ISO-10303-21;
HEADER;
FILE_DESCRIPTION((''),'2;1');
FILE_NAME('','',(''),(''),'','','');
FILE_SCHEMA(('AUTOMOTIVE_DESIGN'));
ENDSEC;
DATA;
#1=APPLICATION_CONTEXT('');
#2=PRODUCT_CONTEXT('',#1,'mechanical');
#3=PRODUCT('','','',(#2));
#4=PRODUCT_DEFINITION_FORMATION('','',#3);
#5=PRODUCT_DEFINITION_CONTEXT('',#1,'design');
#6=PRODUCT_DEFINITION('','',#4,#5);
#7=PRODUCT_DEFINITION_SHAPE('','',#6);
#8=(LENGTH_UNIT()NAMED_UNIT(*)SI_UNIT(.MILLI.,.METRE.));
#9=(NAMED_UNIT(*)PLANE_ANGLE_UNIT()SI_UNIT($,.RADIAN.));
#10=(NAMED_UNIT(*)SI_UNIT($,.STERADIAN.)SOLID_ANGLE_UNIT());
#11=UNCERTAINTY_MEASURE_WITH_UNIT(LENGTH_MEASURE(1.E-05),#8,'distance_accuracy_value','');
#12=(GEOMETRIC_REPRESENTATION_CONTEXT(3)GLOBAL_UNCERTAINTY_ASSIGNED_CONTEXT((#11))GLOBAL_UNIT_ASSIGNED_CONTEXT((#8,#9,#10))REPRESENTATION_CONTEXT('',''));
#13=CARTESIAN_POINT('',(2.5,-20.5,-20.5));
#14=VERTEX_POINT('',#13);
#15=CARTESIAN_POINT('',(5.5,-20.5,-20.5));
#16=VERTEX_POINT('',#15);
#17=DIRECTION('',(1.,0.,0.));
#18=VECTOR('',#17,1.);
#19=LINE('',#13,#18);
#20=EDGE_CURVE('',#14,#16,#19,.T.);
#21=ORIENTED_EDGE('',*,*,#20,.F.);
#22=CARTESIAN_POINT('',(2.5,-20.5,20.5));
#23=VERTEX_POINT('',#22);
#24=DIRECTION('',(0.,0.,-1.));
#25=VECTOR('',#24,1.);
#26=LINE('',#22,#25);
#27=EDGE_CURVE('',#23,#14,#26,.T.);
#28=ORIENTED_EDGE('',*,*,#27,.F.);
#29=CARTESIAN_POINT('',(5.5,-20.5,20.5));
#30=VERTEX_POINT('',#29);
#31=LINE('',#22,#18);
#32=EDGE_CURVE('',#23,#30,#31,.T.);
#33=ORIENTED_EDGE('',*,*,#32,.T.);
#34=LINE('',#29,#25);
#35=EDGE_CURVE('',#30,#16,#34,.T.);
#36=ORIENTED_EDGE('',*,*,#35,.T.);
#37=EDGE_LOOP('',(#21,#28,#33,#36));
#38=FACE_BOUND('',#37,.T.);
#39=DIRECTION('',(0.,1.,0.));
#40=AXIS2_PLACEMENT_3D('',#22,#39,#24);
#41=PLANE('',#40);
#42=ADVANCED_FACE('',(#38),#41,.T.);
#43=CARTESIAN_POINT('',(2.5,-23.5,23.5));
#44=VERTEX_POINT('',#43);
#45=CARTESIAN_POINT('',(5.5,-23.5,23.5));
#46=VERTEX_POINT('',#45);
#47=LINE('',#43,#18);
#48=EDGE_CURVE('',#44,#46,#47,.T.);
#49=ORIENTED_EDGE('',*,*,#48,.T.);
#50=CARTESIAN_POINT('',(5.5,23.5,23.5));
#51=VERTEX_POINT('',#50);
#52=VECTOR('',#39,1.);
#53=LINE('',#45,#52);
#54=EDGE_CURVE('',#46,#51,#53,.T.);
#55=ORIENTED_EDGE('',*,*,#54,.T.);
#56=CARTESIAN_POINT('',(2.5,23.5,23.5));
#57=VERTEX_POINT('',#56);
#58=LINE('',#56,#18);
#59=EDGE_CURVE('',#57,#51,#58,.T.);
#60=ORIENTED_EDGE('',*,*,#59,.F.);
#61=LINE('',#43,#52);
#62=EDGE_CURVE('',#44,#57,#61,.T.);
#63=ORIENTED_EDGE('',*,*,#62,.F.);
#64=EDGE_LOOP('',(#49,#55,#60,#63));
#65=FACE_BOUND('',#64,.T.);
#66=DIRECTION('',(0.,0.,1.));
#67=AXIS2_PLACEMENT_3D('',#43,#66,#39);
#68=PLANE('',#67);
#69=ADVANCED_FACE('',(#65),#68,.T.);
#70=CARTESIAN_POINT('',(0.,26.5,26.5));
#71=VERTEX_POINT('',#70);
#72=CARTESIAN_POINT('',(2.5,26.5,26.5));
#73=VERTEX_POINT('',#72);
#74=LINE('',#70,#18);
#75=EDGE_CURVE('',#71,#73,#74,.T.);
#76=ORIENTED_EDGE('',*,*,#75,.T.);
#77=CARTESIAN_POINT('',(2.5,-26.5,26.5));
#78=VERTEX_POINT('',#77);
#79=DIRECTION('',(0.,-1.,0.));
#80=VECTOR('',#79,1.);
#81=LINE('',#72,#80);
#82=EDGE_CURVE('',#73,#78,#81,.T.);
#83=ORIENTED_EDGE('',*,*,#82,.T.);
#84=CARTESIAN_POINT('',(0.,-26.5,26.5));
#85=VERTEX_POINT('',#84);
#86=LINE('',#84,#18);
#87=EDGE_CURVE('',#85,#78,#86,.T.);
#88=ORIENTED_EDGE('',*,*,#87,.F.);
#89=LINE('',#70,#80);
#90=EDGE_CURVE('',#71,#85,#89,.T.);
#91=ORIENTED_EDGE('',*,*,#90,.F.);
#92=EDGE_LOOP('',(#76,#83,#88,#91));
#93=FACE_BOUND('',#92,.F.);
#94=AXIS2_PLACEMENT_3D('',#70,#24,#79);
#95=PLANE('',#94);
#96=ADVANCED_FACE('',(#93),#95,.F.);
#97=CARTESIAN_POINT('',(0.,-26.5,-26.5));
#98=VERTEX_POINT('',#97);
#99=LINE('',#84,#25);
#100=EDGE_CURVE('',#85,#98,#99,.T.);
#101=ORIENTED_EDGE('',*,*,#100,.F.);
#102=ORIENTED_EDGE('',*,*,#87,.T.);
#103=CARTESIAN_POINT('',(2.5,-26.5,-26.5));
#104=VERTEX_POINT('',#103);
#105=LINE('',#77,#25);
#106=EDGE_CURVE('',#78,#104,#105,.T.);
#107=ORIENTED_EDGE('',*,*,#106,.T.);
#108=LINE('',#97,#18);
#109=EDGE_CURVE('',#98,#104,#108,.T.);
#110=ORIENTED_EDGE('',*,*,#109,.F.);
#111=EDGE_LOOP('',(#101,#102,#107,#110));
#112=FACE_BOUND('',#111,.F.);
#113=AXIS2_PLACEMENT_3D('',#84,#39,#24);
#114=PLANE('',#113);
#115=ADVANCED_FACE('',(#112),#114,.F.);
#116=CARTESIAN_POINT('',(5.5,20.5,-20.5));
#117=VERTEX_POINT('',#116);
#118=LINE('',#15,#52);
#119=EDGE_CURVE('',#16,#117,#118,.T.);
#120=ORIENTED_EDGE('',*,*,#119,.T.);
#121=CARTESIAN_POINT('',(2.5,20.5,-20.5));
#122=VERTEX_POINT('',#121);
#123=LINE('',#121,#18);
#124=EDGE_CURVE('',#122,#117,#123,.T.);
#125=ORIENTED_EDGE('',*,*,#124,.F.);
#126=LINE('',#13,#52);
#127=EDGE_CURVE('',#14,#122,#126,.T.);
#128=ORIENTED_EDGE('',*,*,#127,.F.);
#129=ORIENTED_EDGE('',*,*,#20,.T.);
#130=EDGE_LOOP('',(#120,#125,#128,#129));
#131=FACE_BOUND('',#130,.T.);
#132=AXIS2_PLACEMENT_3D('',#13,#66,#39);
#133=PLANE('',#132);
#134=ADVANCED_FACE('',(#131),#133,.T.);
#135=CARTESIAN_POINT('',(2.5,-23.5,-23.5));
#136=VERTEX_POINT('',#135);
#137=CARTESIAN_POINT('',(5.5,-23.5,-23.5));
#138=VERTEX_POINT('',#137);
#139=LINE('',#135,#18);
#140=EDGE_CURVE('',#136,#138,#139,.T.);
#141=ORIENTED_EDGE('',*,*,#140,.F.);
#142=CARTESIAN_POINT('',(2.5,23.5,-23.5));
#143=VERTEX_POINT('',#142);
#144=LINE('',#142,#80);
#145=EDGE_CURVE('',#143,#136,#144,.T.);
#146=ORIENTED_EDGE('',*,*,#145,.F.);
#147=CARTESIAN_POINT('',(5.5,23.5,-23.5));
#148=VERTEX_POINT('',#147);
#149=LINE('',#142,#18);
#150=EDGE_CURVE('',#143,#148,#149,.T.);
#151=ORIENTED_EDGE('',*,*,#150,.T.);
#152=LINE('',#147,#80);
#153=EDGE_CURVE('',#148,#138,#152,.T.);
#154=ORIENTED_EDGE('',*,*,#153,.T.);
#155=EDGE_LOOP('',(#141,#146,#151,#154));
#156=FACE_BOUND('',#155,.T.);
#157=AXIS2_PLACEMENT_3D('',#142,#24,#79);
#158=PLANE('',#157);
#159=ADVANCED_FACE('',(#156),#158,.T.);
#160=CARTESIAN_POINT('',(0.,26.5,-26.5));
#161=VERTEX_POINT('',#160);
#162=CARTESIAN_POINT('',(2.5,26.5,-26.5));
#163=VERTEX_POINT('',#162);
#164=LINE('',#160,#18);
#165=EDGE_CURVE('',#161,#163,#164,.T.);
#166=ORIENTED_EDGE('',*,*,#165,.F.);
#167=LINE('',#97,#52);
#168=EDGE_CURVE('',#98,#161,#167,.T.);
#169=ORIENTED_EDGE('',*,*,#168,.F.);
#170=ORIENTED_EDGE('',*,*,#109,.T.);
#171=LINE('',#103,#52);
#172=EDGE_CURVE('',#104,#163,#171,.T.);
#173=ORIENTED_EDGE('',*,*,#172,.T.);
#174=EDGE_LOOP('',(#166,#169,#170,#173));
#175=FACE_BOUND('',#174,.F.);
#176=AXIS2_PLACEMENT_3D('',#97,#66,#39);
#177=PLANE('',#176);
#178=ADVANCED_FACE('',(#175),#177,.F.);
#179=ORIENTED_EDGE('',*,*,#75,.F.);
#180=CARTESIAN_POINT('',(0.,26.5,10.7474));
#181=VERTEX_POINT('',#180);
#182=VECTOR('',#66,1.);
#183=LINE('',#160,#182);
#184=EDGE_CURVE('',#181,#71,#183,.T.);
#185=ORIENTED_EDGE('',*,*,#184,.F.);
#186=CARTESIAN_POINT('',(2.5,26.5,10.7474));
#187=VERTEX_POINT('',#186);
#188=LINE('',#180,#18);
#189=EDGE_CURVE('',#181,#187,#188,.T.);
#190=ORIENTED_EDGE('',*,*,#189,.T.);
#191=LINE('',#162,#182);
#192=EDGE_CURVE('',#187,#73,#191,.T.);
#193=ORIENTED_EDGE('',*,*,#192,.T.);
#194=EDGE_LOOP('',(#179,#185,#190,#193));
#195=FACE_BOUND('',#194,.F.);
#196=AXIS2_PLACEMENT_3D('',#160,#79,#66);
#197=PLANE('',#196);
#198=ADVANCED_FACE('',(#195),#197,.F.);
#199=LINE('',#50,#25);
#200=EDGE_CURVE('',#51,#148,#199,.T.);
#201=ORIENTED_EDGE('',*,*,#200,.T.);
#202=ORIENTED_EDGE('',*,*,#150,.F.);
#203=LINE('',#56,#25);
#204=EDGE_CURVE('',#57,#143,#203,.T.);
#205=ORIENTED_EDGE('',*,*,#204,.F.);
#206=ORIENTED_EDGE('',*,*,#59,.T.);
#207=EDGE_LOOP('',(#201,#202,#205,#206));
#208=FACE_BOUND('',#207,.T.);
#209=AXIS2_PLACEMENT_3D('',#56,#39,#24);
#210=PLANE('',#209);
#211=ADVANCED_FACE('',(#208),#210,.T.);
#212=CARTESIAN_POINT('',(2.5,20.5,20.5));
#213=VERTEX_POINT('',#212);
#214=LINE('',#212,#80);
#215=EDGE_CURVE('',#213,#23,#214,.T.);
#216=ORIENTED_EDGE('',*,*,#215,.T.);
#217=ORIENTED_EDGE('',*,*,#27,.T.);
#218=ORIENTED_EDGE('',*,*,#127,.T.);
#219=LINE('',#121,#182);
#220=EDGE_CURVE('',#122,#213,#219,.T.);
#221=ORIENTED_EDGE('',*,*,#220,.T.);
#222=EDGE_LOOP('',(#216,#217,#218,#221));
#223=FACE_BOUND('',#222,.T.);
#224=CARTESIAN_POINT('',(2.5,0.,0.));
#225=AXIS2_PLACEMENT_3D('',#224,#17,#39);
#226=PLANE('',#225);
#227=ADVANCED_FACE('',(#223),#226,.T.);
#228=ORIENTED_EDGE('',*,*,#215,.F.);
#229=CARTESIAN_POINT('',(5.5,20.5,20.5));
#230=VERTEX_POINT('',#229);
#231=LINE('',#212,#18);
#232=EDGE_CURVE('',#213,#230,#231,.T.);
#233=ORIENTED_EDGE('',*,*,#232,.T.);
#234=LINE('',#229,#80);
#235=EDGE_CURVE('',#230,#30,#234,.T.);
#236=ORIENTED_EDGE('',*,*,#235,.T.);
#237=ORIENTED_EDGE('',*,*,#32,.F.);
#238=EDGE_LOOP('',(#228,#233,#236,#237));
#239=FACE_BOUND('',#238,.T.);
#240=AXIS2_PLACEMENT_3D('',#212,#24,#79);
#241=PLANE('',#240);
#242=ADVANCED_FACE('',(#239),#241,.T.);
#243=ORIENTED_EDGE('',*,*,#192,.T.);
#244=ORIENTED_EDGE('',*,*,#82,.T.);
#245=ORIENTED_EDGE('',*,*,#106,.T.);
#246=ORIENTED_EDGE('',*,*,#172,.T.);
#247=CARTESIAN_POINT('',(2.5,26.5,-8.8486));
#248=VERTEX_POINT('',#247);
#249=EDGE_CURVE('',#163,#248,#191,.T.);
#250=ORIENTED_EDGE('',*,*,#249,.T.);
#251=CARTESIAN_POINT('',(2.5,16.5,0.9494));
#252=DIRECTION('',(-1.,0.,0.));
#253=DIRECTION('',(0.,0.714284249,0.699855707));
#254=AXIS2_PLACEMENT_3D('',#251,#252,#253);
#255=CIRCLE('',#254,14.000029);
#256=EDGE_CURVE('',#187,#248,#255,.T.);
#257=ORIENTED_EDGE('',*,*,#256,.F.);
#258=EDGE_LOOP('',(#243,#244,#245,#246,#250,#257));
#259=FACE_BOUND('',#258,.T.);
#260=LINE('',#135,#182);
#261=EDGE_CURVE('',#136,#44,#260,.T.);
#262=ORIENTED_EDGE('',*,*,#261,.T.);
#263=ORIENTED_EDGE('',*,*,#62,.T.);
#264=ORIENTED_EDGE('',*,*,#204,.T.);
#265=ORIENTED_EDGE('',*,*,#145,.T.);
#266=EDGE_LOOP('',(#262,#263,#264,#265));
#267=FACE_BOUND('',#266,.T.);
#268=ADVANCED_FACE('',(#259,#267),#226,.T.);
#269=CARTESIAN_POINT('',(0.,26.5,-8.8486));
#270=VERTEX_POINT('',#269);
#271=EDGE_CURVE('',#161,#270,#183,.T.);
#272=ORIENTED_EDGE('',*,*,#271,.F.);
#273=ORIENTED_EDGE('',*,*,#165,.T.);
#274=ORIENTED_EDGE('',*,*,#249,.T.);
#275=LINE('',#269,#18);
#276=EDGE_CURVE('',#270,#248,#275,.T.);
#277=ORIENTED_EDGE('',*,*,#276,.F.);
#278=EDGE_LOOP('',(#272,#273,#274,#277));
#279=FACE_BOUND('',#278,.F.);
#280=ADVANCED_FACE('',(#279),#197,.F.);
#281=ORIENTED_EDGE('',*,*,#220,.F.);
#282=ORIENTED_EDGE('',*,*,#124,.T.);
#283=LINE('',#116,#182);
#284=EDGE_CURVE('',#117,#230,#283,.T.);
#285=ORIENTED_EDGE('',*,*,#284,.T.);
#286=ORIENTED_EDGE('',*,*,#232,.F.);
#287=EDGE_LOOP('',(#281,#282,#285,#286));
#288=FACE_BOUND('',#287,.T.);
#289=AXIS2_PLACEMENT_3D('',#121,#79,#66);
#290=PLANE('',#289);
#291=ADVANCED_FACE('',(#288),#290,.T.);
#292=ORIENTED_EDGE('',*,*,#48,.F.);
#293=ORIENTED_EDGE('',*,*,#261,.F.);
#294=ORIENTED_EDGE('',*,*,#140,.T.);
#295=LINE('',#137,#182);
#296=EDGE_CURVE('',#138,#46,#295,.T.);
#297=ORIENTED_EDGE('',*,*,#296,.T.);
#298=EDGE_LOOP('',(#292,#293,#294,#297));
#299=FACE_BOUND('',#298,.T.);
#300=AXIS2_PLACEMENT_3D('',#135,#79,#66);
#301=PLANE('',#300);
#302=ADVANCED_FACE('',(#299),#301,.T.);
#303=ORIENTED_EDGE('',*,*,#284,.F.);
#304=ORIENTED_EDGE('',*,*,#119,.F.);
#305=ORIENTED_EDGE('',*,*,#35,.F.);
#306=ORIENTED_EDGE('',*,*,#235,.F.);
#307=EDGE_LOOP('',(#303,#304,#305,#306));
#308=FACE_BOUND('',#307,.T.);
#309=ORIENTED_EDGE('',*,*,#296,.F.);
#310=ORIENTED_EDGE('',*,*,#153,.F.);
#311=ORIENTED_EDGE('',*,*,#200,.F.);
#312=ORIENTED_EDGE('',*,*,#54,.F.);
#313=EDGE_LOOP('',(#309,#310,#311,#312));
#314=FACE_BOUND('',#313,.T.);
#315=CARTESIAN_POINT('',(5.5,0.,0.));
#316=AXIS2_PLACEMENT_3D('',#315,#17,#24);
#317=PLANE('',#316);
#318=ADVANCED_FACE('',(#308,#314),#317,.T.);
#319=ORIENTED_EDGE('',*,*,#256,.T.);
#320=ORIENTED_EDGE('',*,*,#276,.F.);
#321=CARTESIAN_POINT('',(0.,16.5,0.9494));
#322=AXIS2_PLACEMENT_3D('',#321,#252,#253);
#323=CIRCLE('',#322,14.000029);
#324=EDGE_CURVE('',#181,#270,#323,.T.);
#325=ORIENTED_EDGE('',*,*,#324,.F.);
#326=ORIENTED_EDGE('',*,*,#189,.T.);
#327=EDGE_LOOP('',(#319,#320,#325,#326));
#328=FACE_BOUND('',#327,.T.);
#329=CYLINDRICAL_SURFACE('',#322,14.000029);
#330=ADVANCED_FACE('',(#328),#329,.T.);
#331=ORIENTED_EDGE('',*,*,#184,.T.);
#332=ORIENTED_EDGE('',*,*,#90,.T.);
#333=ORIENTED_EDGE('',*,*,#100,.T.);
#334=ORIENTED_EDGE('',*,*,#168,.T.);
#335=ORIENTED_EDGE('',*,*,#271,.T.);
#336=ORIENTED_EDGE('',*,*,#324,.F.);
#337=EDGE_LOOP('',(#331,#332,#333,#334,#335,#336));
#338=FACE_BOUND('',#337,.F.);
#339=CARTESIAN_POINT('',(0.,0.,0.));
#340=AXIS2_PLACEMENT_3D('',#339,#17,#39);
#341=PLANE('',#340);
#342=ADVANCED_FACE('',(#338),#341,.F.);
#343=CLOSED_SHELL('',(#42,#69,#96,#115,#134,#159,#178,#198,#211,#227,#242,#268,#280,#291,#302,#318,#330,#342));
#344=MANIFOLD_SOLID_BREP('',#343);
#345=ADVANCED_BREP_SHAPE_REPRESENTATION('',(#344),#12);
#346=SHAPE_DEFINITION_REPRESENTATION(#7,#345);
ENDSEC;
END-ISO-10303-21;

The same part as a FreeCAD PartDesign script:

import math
import FreeCAD as App
import Part
import Sketcher

V = App.Vector
Q = App.Units.Quantity

doc = App.newDocument("Part")
body = doc.addObject("PartDesign::Body", "Body")

# Sketch on YZ plane
sketch1 = body.newObject("Sketcher::SketchObject", "Sketch")
sketch1.AttachmentSupport = (doc.getObject("YZ_Plane"), [""])
sketch1.MapMode = "FlatFace"
sketch1.addGeometry(Part.LineSegment(V(26.5, -26.5, 0), V(26.5, 26.5, 0)), False)
sketch1.addGeometry(Part.LineSegment(V(26.5, 26.5, 0), V(-26.5, 26.5, 0)), False)
sketch1.addGeometry(Part.LineSegment(V(-26.5, 26.5, 0), V(-26.5, -26.5, 0)), False)
sketch1.addGeometry(Part.LineSegment(V(-26.5, -26.5, 0), V(26.5, -26.5, 0)), False)
sketch1.addConstraint(Sketcher.Constraint("Coincident", 0, 2, 1, 1))
sketch1.addConstraint(Sketcher.Constraint("Coincident", 1, 2, 2, 1))
sketch1.addConstraint(Sketcher.Constraint("Coincident", 2, 2, 3, 1))
sketch1.addConstraint(Sketcher.Constraint("Coincident", 3, 2, 0, 1))
sketch1.addConstraint(Sketcher.Constraint("Vertical", 0))
sketch1.addConstraint(Sketcher.Constraint("Horizontal", 1))
sketch1.addConstraint(Sketcher.Constraint("Vertical", 2))
sketch1.addConstraint(Sketcher.Constraint("Horizontal", 3))
sketch1.addConstraint(Sketcher.Constraint("Symmetric", 0, 2, 2, 2, -1, 1))
sketch1.addConstraint(Sketcher.Constraint("Equal", 3, 0))
sketch1.addConstraint(Sketcher.Constraint("DistanceX", 1, 2, 1, 1, Q("53 mm")))
pad1 = body.newObject("PartDesign::Pad", "Pad")
pad1.Profile = sketch1
pad1.Length = 2.5

# Sketch on YZ plane
sketch2 = body.newObject("Sketcher::SketchObject", "Sketch001")
sketch2.AttachmentSupport = (doc.getObject("YZ_Plane"), [""])
sketch2.MapMode = "FlatFace"
sketch2.AttachmentOffset = App.Placement(V(0, 0, 2.5), App.Rotation())
sketch2.addGeometry(Part.LineSegment(V(23.5, -23.5, 0), V(23.5, 23.5, 0)), False)
sketch2.addGeometry(Part.LineSegment(V(23.5, 23.5, 0), V(-23.5, 23.5, 0)), False)
sketch2.addGeometry(Part.LineSegment(V(-23.5, 23.5, 0), V(-23.5, -23.5, 0)), False)
sketch2.addGeometry(Part.LineSegment(V(-23.5, -23.5, 0), V(23.5, -23.5, 0)), False)
sketch2.addGeometry(Part.LineSegment(V(20.5, 20.5, 0), V(20.5, -20.5, 0)), False)
sketch2.addGeometry(Part.LineSegment(V(20.5, -20.5, 0), V(-20.5, -20.5, 0)), False)
sketch2.addGeometry(Part.LineSegment(V(-20.5, -20.5, 0), V(-20.5, 20.5, 0)), False)
sketch2.addGeometry(Part.LineSegment(V(-20.5, 20.5, 0), V(20.5, 20.5, 0)), False)
sketch2.addConstraint(Sketcher.Constraint("Coincident", 0, 2, 1, 1))
sketch2.addConstraint(Sketcher.Constraint("Coincident", 1, 2, 2, 1))
sketch2.addConstraint(Sketcher.Constraint("Coincident", 2, 2, 3, 1))
sketch2.addConstraint(Sketcher.Constraint("Coincident", 3, 2, 0, 1))
sketch2.addConstraint(Sketcher.Constraint("Coincident", 4, 2, 5, 1))
sketch2.addConstraint(Sketcher.Constraint("Coincident", 5, 2, 6, 1))
sketch2.addConstraint(Sketcher.Constraint("Coincident", 6, 2, 7, 1))
sketch2.addConstraint(Sketcher.Constraint("Coincident", 7, 2, 4, 1))
sketch2.addConstraint(Sketcher.Constraint("Vertical", 0))
sketch2.addConstraint(Sketcher.Constraint("Horizontal", 1))
sketch2.addConstraint(Sketcher.Constraint("Vertical", 2))
sketch2.addConstraint(Sketcher.Constraint("Horizontal", 3))
sketch2.addConstraint(Sketcher.Constraint("Vertical", 4))
sketch2.addConstraint(Sketcher.Constraint("Horizontal", 5))
sketch2.addConstraint(Sketcher.Constraint("Vertical", 6))
sketch2.addConstraint(Sketcher.Constraint("Horizontal", 7))
sketch2.addConstraint(Sketcher.Constraint("Symmetric", 0, 2, 2, 2, -1, 1))
sketch2.addConstraint(Sketcher.Constraint("Symmetric", 4, 2, 6, 2, -1, 1))
sketch2.addConstraint(Sketcher.Constraint("Equal", 3, 0))
sketch2.addConstraint(Sketcher.Constraint("Equal", 7, 4))
sketch2.addConstraint(Sketcher.Constraint("DistanceX", 4, 2, 3, 2, Q("3 mm")))
sketch2.addConstraint(Sketcher.Constraint("DistanceX", 1, 2, 1, 1, Q("47 mm")))
pad2 = body.newObject("PartDesign::Pad", "Pad001")
pad2.Profile = sketch2
pad2.Length = 3

# Sketch on YZ plane
sketch3 = body.newObject("Sketcher::SketchObject", "Sketch002")
sketch3.AttachmentSupport = (doc.getObject("YZ_Plane"), [""])
sketch3.MapMode = "FlatFace"
sketch3.addGeometry(Part.ArcOfCircle(Part.Circle(V(16.5, 0.9494, 0), V(0, 0, 1), 14.000029), math.radians(-44.415429), math.radians(44.415429)), False)
sketch3.addGeometry(Part.LineSegment(V(26.5, -8.8486, 0), V(26.5, 10.7474, 0)), False)
sketch3.addConstraint(Sketcher.Constraint("Coincident", 0, 1, 1, 1))
sketch3.addConstraint(Sketcher.Constraint("Coincident", 1, 2, 0, 2))
sketch3.addConstraint(Sketcher.Constraint("Vertical", 1))
sketch3.addConstraint(Sketcher.Constraint("Radius", 0, Q("14 mm")))
sketch3.addConstraint(Sketcher.Constraint("DistanceX", 0, 3, 0, 1, Q("10 mm")))
sketch3.addConstraint(Sketcher.Constraint("DistanceX", -1, 1, 0, 1, Q("26.5 mm")))
sketch3.addConstraint(Sketcher.Constraint("DistanceY", -1, 1, 0, 3, Q("0.9494 mm")))
pad3 = body.newObject("PartDesign::Pad", "Pad002")
pad3.Profile = sketch3
pad3.Length = 2.5

doc.recompute()
